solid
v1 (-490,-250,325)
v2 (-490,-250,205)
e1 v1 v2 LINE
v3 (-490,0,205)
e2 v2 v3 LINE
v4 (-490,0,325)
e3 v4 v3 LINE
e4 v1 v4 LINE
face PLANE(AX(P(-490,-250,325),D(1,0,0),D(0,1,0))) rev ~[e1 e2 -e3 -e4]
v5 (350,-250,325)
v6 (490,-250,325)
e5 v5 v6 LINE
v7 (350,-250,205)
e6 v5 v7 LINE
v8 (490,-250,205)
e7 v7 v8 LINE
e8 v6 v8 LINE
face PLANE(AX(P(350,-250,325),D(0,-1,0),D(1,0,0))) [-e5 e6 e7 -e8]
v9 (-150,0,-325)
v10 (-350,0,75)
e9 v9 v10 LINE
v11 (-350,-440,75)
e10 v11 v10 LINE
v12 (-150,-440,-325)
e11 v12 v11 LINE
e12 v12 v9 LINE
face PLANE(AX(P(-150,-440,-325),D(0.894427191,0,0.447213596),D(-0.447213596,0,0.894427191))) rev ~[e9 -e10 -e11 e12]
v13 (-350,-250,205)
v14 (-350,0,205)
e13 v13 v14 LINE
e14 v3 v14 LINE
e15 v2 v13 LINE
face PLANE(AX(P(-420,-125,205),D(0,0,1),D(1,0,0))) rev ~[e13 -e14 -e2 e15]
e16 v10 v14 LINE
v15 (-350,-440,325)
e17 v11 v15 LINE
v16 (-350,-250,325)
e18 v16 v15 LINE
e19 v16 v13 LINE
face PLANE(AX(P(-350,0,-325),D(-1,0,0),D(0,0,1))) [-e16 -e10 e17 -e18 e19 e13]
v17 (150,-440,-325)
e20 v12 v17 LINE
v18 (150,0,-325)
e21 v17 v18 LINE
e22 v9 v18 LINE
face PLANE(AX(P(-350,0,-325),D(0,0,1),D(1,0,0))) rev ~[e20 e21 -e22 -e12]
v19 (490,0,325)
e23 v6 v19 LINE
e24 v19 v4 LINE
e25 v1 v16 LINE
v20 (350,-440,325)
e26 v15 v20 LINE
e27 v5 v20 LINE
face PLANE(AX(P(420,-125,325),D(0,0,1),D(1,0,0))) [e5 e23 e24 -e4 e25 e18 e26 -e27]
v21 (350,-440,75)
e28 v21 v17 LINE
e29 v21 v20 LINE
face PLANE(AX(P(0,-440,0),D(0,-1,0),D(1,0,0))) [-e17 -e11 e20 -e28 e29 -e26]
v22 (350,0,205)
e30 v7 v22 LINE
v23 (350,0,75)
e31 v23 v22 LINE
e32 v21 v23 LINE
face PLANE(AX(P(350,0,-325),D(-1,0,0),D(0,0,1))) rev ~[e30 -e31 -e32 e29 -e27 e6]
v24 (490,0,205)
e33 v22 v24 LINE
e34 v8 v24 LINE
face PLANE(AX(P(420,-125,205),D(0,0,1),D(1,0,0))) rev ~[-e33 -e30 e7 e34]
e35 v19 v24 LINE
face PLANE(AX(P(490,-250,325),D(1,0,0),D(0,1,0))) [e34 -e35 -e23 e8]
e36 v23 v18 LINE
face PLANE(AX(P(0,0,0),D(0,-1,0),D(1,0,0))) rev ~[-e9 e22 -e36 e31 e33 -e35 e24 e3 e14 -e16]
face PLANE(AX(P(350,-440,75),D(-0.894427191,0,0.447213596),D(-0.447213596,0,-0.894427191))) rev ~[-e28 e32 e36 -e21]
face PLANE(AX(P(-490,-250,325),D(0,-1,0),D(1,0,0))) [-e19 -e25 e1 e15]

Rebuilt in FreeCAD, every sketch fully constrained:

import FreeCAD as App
import Part
import Sketcher

V = App.Vector
Q = App.Units.Quantity


def add_polygon(sketch, points):
    """Adds a closed chain of lines whose ends are joined by coincident constraints."""
    first, n = sketch.GeometryCount, len(points)
    for a, b in zip(points, points[1:] + points[:1]):
        sketch.addGeometry(Part.LineSegment(App.Vector(*a, 0), App.Vector(*b, 0)), False)
    for i in range(n):
        sketch.addConstraint(Sketcher.Constraint("Coincident", first + i, 2, first + (i + 1) % n, 1))

doc = App.newDocument("Part")
params = doc.addObject("Spreadsheet::Sheet", "Params")
for row, (alias, value) in enumerate([
    ("sketch1_width", "700 mm"),
    ("sketch1_height", "650 mm"),
    ("pad1_length", "440 mm"),
    ("sketch2_width", "200 mm"),
    ("sketch2_height", "400 mm"),
    ("sketch3_width", "140 mm"),
    ("sketch3_height", "250 mm"),
    ("pad2_length", "120 mm"),
], start=1):
    params.set(f"A{row}", alias)
    params.set(f"B{row}", "=" + value)
    params.setAlias(f"B{row}", alias)

body = doc.addObject("PartDesign::Body", "Body")

sketch1 = body.newObject("Sketcher::SketchObject", "Sketch")
sketch1.AttachmentSupport = (doc.getObject("XZ_Plane"), [""])
sketch1.MapMode = "FlatFace"
add_polygon(sketch1, [(-350, 325), (-350, -325), (350, -325), (350, 325)])
sketch1.addConstraint([
    Sketcher.Constraint("Vertical", 0),
    Sketcher.Constraint("Horizontal", 1),
    Sketcher.Constraint("Vertical", 2),
    Sketcher.Constraint("Horizontal", 3),
    Sketcher.Constraint("Symmetric", 0, 2, 2, 2, -1, 1),
    Sketcher.Constraint("DistanceX", 1, 1, 1, 2, Q("700 mm")),
    Sketcher.Constraint("DistanceY", 0, 2, 0, 1, Q("650 mm")),
])
sketch1.setExpression("Constraints[9]", "Params.sketch1_width")
sketch1.setExpression("Constraints[10]", "Params.sketch1_height")
pad1 = body.newObject("PartDesign::Pad", "Pad")
pad1.Profile = sketch1
pad1.setExpression("Length", "Params.pad1_length")

sketch2 = body.newObject("Sketcher::SketchObject", "Sketch001")
sketch2.AttachmentSupport = (doc.getObject("XZ_Plane"), [""])
sketch2.MapMode = "FlatFace"
sketch2.AttachmentOffset = App.Placement(V(0, 0, 440), App.Rotation())
add_polygon(sketch2, [(-150, -325), (-350, 75), (-350, -325)])
add_polygon(sketch2, [(350, 75), (150, -325), (350, -325)])
sketch2.addConstraint([
    Sketcher.Constraint("Vertical", 1),
    Sketcher.Constraint("Horizontal", 2),
    Sketcher.Constraint("Horizontal", 4),
    Sketcher.Constraint("Vertical", 5),
    Sketcher.Constraint("Symmetric", 2, 2, 3, 2, -2),
    Sketcher.Constraint("Symmetric", 0, 2, 5, 2, -2),
    Sketcher.Constraint("DistanceX", 2, 1, 2, 2, Q("200 mm")),
    Sketcher.Constraint("DistanceY", 1, 2, 1, 1, Q("400 mm")),
    Sketcher.Constraint("DistanceX", 0, 2, -1, 1, Q("350 mm")),
    Sketcher.Constraint("DistanceY", -1, 1, 0, 2, Q("75 mm")),
])
sketch2.setExpression("Constraints[12]", "Params.sketch2_width")
sketch2.setExpression("Constraints[13]", "Params.sketch2_height")
pocket1 = body.newObject("PartDesign::Pocket", "Pocket")
pocket1.Profile = sketch2
pocket1.Type = "ThroughAll"

sketch3 = body.newObject("Sketcher::SketchObject", "Sketch002")
sketch3.AttachmentSupport = (doc.getObject("XY_Plane"), [""])
sketch3.MapMode = "FlatFace"
sketch3.AttachmentOffset = App.Placement(V(0, 0, 325), App.Rotation())
add_polygon(sketch3, [(350, 0), (350, -250), (490, -250), (490, 0)])
add_polygon(sketch3, [(-490, 0), (-490, -250), (-350, -250), (-350, 0)])
sketch3.addConstraint([
    Sketcher.Constraint("Vertical", 0),
    Sketcher.Constraint("Horizontal", 1),
    Sketcher.Constraint("Vertical", 2),
    Sketcher.Constraint("Horizontal", 3),
    Sketcher.Constraint("Vertical", 4),
    Sketcher.Constraint("Horizontal", 5),
    Sketcher.Constraint("Vertical", 6),
    Sketcher.Constraint("Horizontal", 7),
    Sketcher.Constraint("Symmetric", 3, 2, 6, 2, -1, 1),
    Sketcher.Constraint("Symmetric", 1, 2, 4, 2, -2),
    Sketcher.Constraint("PointOnObject", 2, 2, -1),
    Sketcher.Constraint("DistanceX", 1, 1, 1, 2, Q("140 mm")),
    Sketcher.Constraint("DistanceY", 0, 2, 0, 1, Q("250 mm")),
    Sketcher.Constraint("DistanceX", -1, 1, 0, 2, Q("350 mm")),
])
sketch3.setExpression("Constraints[19]", "Params.sketch3_width")
sketch3.setExpression("Constraints[20]", "Params.sketch3_height")
pad2 = body.newObject("PartDesign::Pad", "Pad001")
pad2.Profile = sketch3
pad2.setExpression("Length", "Params.pad2_length")
pad2.Reversed = True

doc.recompute()
